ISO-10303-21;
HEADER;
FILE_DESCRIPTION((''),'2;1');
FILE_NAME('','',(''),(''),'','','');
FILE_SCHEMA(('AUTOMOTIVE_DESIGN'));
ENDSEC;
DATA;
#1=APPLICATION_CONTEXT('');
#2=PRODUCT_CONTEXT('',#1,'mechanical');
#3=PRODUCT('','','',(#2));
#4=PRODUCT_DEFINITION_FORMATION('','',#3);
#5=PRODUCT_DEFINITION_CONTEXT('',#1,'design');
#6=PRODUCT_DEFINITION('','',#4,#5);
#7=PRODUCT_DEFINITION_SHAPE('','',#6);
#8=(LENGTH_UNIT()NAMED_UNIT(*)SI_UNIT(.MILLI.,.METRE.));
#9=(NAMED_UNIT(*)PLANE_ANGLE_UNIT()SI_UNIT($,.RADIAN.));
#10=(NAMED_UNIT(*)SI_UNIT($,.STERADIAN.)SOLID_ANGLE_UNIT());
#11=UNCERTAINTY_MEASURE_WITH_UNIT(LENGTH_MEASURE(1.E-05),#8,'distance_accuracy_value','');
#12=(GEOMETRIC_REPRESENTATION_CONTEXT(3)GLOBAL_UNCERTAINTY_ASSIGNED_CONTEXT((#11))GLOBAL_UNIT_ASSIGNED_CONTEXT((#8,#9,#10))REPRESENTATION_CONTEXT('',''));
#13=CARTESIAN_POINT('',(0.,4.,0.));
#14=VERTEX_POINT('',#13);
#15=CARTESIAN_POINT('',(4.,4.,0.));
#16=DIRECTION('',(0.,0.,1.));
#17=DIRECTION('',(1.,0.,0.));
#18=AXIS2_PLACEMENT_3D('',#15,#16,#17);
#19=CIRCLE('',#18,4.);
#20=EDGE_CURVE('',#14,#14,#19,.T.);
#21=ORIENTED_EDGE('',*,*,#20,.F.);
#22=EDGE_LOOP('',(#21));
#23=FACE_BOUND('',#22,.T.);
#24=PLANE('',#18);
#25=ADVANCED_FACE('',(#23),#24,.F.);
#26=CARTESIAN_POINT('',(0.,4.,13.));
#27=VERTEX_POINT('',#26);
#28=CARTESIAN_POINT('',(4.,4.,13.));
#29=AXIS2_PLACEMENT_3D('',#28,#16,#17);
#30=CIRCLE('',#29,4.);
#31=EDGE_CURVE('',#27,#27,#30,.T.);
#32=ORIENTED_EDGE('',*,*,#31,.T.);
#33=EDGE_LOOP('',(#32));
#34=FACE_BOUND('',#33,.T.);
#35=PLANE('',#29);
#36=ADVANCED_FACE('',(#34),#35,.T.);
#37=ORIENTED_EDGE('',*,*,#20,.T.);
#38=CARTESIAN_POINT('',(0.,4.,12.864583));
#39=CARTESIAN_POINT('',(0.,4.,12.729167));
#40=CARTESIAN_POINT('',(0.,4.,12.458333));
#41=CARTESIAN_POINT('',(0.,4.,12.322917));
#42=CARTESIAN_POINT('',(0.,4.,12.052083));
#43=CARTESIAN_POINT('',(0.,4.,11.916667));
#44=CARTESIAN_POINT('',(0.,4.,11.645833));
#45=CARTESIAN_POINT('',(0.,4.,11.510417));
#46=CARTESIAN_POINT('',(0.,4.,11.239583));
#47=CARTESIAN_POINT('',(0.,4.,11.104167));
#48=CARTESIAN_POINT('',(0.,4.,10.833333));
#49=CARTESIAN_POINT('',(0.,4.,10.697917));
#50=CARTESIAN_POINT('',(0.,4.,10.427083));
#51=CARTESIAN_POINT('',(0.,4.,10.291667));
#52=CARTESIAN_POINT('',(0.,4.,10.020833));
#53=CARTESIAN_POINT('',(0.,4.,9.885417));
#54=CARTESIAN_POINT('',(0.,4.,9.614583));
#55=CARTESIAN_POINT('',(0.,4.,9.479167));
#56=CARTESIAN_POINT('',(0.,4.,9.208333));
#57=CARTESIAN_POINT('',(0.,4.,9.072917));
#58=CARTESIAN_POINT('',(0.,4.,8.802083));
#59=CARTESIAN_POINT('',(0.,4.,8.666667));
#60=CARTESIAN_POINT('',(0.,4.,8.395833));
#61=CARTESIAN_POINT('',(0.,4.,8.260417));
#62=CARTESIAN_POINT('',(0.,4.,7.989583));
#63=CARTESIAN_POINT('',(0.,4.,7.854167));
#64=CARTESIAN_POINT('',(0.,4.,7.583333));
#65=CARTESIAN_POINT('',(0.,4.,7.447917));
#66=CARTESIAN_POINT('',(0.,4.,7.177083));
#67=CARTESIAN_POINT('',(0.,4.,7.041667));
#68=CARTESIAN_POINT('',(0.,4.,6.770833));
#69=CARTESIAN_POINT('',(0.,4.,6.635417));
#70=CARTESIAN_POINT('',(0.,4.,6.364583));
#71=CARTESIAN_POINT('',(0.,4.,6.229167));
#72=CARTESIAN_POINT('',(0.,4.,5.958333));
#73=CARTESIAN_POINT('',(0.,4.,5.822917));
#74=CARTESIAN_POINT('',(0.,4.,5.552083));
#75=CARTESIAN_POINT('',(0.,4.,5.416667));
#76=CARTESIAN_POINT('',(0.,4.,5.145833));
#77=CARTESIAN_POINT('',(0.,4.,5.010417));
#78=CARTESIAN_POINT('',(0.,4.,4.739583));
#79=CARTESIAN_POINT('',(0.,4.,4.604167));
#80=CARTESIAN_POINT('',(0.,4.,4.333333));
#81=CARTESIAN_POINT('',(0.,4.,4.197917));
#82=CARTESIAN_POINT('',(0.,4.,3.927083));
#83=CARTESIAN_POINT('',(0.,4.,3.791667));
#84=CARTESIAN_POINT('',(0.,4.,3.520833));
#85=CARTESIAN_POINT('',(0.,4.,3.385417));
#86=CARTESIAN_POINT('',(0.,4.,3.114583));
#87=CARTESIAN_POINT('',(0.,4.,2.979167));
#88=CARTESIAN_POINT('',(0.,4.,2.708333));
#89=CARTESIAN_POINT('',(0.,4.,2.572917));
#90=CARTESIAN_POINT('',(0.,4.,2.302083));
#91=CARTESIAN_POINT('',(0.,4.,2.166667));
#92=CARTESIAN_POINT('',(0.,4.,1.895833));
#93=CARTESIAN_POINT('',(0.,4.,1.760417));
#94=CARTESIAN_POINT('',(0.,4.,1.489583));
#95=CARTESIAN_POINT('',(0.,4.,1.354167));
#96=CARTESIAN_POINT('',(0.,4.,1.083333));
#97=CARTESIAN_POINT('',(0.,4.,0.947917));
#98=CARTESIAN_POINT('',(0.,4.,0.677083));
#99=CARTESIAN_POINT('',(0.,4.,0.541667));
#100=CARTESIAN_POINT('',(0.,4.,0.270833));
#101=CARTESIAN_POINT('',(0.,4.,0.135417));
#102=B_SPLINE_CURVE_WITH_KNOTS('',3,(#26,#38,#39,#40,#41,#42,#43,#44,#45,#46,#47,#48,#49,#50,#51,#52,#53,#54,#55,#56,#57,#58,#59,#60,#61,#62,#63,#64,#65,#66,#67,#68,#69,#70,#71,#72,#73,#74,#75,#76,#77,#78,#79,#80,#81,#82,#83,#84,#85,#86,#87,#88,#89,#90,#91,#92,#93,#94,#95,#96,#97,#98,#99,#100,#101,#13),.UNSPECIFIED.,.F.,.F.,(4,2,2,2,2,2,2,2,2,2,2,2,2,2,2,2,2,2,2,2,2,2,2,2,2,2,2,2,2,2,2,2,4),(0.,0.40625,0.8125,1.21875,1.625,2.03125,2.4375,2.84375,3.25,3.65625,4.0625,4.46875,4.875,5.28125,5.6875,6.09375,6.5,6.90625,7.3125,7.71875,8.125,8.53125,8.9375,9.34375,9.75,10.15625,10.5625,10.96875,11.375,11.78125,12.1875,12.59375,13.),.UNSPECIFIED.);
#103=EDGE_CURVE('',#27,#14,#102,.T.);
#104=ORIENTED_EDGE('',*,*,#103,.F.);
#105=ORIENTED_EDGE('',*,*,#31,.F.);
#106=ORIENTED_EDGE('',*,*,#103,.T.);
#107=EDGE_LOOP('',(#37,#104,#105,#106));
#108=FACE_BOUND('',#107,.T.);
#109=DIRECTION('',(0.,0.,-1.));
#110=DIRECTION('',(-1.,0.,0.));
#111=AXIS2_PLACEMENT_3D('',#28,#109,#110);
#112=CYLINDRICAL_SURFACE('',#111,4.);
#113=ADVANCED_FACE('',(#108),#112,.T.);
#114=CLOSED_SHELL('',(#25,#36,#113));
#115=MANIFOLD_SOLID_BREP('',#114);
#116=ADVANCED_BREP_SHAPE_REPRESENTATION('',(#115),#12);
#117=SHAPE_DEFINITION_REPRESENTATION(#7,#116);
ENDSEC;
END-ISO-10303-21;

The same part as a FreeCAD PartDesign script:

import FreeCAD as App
import Part
import Sketcher
Q = App.Units.Quantity

doc = App.newDocument("Part")
params = doc.addObject("Spreadsheet::Sheet", "Params")
for row, (alias, value) in enumerate([
    ("sketch1_diameter", "8 mm"),
    ("pad1_length", "13 mm"),
], start=1):
    params.set(f"A{row}", alias)
    params.set(f"B{row}", "=" + value)
    params.setAlias(f"B{row}", alias)

body = doc.addObject("PartDesign::Body", "Body")

# Sketch on XY plane
sketch1 = body.newObject("Sketcher::SketchObject", "Sketch")
sketch1.AttachmentSupport = (doc.getObject("XY_Plane"), [""])
sketch1.MapMode = "FlatFace"
sketch1.addGeometry(Part.Circle(App.Vector(4, 4, 0), App.Vector(0, 0, 1), 4), False)
sketch1.addConstraint(Sketcher.Constraint("Diameter", 0, Q("8 mm")))
sketch1.addConstraint(Sketcher.Constraint("DistanceX", -1, 1, 0, 3, Q("4 mm")))
sketch1.addConstraint(Sketcher.Constraint("DistanceY", -1, 1, 0, 3, Q("4 mm")))
sketch1.setExpression("Constraints[0]", "Params.sketch1_diameter")
pad1 = body.newObject("PartDesign::Pad", "Pad")
pad1.Profile = sketch1
pad1.setExpression("Length", "Params.pad1_length")

doc.recompute()
